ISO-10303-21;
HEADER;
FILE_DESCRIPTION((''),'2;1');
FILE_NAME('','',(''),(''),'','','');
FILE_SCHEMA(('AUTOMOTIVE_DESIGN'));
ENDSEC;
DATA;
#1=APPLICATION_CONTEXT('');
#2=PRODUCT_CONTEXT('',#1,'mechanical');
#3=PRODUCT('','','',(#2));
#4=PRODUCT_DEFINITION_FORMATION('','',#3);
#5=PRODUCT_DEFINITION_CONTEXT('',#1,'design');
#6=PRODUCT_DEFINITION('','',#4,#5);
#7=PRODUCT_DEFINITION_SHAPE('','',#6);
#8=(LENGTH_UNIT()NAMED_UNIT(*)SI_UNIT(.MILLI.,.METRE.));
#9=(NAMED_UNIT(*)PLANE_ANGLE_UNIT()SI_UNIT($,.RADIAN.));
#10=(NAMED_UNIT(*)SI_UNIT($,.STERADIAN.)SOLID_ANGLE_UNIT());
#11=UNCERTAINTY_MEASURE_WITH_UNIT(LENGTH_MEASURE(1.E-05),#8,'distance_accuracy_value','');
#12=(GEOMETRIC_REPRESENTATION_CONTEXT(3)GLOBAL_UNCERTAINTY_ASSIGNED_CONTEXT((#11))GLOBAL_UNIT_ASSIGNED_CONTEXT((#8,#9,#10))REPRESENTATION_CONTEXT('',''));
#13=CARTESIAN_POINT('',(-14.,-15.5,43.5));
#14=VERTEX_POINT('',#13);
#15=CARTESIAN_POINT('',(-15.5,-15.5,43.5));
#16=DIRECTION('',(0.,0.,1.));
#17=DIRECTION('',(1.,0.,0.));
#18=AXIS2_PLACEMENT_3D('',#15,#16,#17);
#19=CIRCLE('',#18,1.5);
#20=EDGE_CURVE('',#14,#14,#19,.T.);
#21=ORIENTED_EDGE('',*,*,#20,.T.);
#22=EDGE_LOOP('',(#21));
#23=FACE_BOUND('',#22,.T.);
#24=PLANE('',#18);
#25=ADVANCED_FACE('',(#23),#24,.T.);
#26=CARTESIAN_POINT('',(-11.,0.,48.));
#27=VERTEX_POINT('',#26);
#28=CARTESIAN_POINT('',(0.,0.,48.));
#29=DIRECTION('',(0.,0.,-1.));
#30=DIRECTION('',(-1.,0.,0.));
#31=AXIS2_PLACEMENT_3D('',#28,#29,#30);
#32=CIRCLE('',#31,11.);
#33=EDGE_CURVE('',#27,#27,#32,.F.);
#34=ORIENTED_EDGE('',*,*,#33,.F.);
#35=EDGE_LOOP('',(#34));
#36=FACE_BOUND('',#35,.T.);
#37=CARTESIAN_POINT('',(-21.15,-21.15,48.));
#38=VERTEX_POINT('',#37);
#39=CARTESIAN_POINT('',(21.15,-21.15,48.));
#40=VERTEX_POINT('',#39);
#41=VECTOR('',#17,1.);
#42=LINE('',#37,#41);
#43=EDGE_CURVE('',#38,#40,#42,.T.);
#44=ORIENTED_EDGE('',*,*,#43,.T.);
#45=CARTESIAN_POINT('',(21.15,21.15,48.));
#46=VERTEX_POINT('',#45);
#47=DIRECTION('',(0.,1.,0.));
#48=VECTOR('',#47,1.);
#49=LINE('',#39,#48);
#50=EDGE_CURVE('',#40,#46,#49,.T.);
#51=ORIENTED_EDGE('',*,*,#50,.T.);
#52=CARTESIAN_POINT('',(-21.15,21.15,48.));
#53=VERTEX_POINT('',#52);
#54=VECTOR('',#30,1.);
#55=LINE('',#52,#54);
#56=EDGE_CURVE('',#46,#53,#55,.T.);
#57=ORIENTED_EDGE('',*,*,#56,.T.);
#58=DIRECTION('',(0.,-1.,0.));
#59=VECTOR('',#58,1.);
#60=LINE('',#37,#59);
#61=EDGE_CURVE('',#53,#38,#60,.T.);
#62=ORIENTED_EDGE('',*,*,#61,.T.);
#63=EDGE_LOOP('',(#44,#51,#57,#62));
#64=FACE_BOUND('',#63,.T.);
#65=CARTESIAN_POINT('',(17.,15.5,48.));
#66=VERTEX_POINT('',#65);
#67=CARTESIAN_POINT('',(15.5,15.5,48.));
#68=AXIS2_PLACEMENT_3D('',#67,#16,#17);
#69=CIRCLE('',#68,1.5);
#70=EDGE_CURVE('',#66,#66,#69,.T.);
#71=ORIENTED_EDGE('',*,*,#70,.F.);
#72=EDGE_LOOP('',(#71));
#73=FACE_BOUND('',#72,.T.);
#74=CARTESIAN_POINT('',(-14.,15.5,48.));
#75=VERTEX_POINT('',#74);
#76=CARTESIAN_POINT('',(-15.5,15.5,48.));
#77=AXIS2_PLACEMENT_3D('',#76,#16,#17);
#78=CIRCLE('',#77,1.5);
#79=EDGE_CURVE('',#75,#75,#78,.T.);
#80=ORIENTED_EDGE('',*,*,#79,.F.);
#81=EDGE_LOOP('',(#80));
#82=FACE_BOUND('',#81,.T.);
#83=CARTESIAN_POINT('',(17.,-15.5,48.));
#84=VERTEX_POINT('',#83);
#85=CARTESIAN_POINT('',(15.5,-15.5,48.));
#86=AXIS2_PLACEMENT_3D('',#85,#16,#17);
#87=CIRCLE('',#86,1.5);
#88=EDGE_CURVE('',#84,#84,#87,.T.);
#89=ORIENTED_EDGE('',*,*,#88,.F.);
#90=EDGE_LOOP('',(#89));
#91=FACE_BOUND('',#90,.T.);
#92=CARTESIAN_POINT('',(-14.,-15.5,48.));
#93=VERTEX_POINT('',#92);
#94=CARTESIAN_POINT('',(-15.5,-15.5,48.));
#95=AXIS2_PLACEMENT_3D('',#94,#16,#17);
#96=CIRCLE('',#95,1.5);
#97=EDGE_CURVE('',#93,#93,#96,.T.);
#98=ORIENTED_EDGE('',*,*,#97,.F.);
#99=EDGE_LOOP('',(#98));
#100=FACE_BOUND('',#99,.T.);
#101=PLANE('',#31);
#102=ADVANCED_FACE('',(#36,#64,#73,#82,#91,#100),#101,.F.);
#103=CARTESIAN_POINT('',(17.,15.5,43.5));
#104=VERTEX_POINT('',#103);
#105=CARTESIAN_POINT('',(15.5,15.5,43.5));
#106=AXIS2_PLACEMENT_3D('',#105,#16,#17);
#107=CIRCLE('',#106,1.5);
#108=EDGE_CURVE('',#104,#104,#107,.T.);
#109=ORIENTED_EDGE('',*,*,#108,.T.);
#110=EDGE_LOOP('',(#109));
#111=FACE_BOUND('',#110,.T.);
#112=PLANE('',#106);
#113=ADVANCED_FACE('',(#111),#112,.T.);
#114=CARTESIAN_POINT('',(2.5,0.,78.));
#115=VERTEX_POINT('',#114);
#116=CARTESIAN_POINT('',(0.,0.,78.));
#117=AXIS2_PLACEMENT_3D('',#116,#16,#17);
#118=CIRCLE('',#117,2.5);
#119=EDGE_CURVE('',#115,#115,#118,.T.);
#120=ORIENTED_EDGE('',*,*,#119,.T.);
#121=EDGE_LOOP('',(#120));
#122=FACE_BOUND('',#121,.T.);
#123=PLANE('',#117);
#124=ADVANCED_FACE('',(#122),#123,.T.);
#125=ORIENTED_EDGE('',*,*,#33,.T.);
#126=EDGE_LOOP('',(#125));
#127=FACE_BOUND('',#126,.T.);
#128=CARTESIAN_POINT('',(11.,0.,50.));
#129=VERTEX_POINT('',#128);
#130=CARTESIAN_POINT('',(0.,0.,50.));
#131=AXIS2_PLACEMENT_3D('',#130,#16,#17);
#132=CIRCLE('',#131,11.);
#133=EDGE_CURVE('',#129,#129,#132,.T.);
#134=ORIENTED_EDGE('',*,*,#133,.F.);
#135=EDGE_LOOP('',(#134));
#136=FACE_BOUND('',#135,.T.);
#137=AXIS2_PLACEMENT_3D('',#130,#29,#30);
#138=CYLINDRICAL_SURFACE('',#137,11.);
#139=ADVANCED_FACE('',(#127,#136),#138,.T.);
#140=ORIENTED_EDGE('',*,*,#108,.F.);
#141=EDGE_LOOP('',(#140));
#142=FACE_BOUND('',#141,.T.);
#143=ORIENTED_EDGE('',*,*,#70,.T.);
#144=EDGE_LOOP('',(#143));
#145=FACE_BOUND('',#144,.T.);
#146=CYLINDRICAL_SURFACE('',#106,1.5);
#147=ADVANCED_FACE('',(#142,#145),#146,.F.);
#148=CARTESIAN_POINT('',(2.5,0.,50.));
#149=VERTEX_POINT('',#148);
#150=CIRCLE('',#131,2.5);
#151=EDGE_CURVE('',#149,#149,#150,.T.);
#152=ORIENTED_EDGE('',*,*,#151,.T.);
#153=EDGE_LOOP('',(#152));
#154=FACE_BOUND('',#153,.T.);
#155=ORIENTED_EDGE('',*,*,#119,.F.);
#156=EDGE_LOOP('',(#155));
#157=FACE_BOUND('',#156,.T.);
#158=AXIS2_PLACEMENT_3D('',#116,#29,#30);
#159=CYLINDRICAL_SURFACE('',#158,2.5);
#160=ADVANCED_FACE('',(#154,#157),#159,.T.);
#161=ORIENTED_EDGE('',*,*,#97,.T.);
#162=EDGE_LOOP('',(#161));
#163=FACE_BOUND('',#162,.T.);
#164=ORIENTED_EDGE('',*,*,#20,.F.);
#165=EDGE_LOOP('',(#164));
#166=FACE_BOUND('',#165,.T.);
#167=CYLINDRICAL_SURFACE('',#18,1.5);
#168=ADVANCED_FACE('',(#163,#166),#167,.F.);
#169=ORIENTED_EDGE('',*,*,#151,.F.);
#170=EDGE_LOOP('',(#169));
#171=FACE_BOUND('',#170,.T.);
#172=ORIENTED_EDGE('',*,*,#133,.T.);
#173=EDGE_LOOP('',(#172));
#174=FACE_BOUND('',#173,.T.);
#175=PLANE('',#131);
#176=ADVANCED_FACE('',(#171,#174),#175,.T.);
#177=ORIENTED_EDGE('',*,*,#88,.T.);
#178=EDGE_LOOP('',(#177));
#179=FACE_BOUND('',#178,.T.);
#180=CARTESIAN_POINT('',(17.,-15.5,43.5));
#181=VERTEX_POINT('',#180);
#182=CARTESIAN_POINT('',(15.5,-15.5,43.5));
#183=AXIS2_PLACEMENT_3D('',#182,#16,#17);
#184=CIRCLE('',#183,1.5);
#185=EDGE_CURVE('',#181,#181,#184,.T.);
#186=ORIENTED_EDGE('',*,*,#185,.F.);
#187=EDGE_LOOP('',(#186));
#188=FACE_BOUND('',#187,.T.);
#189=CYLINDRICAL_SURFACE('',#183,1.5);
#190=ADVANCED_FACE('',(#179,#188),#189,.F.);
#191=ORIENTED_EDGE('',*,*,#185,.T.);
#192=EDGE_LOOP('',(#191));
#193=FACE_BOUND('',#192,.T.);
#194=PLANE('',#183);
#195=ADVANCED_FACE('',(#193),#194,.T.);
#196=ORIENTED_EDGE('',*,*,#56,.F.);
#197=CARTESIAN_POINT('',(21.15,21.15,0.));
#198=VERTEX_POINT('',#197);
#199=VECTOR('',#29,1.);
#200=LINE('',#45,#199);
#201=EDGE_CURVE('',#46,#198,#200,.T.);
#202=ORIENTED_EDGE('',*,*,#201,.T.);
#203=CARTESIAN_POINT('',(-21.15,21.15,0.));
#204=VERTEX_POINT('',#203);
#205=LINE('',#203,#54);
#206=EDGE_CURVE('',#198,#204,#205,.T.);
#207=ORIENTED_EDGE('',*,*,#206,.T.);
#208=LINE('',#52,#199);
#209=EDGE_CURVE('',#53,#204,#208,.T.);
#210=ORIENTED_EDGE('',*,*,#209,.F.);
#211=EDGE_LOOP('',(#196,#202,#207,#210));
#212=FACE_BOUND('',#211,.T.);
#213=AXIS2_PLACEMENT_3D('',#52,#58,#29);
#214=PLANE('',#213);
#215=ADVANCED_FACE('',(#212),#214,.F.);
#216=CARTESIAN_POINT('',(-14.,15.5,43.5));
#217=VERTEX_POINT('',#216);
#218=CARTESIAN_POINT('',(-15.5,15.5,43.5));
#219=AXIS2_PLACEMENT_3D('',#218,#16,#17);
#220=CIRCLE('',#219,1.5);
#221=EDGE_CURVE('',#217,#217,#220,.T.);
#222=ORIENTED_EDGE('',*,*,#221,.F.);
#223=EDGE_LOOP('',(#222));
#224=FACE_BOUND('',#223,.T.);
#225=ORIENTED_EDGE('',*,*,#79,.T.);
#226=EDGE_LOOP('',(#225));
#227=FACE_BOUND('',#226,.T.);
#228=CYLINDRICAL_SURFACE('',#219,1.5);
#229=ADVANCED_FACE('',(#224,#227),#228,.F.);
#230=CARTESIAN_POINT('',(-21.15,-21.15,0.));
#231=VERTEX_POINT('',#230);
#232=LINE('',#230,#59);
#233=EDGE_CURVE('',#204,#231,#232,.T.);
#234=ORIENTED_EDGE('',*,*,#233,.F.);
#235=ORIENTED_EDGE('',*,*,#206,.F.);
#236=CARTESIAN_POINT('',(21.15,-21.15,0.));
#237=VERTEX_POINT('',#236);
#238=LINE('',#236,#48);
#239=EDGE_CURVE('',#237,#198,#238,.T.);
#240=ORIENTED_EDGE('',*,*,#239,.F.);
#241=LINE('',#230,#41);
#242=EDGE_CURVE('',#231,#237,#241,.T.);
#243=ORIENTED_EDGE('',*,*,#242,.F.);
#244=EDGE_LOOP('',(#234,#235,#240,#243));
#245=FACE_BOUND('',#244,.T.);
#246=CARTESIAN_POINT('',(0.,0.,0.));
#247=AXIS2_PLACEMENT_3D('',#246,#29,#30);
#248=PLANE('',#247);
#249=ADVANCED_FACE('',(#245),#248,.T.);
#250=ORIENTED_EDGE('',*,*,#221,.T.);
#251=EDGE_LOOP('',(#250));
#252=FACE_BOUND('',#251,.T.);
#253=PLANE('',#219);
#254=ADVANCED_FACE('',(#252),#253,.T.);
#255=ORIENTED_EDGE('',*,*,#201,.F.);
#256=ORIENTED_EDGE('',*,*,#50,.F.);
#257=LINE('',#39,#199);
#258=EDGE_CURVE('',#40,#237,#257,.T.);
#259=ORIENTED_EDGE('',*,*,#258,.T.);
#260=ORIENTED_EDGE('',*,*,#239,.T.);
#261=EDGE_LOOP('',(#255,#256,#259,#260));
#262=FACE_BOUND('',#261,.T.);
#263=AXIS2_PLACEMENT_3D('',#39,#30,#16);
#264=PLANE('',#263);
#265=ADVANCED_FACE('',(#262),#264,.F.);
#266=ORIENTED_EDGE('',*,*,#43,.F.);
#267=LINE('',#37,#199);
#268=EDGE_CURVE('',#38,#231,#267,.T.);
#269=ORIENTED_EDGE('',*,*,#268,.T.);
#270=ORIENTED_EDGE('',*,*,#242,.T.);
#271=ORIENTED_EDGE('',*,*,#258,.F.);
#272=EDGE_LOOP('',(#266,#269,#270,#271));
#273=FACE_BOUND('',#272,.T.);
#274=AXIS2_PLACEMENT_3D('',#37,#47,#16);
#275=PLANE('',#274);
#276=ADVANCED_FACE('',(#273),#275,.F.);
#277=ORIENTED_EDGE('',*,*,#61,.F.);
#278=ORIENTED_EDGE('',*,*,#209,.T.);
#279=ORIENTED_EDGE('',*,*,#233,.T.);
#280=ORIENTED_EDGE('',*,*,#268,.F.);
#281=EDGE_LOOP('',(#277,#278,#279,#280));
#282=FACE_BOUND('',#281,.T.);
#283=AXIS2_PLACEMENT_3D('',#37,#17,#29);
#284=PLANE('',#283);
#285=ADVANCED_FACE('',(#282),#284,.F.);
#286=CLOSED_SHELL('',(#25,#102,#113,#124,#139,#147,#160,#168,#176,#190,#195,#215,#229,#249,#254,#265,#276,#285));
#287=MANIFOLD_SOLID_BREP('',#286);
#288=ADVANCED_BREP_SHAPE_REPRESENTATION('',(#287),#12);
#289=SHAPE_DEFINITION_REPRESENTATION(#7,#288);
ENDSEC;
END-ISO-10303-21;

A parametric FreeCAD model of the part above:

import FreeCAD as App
import Part
import Sketcher

V = App.Vector

doc = App.newDocument("Part")
params = doc.addObject("Spreadsheet::Sheet", "Params")
for row, (alias, value) in enumerate([
    ("sketch1_width", "42.3 mm"),
    ("pad1_length", "48 mm"),
    ("sketch2_diameter", "5 mm"),
    ("pad2_length", "78 mm"),
    ("sketch3_diameter", "22 mm"),
    ("pad3_length", "50 mm"),
    ("sketch4_diameter", "3 mm"),
    ("pocket1_length", "4.5 mm"),
], start=1):
    params.set(f"A{row}", alias)
    params.set(f"B{row}", "=" + value)
    params.setAlias(f"B{row}", alias)

body = doc.addObject("PartDesign::Body", "Body")

sketch1 = body.newObject("Sketcher::SketchObject", "Sketch")
sketch1.AttachmentSupport = (doc.getObject("XY_Plane"), [""])
sketch1.MapMode = "FlatFace"
sketch1.addGeometry([
    Part.LineSegment(V(-21, 21, 0), V(-21, -21, 0)),
    Part.LineSegment(V(-21, -21, 0), V(21, -21, 0)),
    Part.LineSegment(V(21, -21, 0), V(21, 21, 0)),
    Part.LineSegment(V(21, 21, 0), V(-21, 21, 0)),
], False)
sketch1.addConstraint([
    Sketcher.Constraint("Coincident", 0, 2, 1, 1),
    Sketcher.Constraint("Coincident", 1, 2, 2, 1),
    Sketcher.Constraint("Coincident", 2, 2, 3, 1),
    Sketcher.Constraint("Coincident", 3, 2, 0, 1),
    Sketcher.Constraint("Vertical", 0),
    Sketcher.Constraint("Horizontal", 1),
    Sketcher.Constraint("Vertical", 2),
    Sketcher.Constraint("Horizontal", 3),
    Sketcher.Constraint("Symmetric", 0, 2, 2, 2, -1, 1),
    Sketcher.Constraint("Equal", 3, 0),
    Sketcher.Constraint("DistanceX", 1, 1, 1, 2, 42.3),
])
sketch1.setExpression("Constraints[10]", "Params.sketch1_width")
pad1 = body.newObject("PartDesign::Pad", "Pad")
pad1.Profile = sketch1
pad1.setExpression("Length", "Params.pad1_length")

sketch2 = body.newObject("Sketcher::SketchObject", "Sketch001")
sketch2.AttachmentSupport = (doc.getObject("XY_Plane"), [""])
sketch2.MapMode = "FlatFace"
sketch2.addGeometry(Part.Circle(V(0, 0, 0), V(0, 0, 1), 2.5), False)
sketch2.addConstraint([
    Sketcher.Constraint("Coincident", 0, 3, -1, 1),
    Sketcher.Constraint("Diameter", 0, 5.0),
])
sketch2.setExpression("Constraints[1]", "Params.sketch2_diameter")
pad2 = body.newObject("PartDesign::Pad", "Pad001")
pad2.Profile = sketch2
pad2.setExpression("Length", "Params.pad2_length")

sketch3 = body.newObject("Sketcher::SketchObject", "Sketch002")
sketch3.AttachmentSupport = (doc.getObject("XY_Plane"), [""])
sketch3.MapMode = "FlatFace"
sketch3.addGeometry(Part.Circle(V(0, 0, 0), V(0, 0, 1), 11), False)
sketch3.addConstraint([
    Sketcher.Constraint("Coincident", 0, 3, -1, 1),
    Sketcher.Constraint("Diameter", 0, 22.0),
])
sketch3.setExpression("Constraints[1]", "Params.sketch3_diameter")
pad3 = body.newObject("PartDesign::Pad", "Pad002")
pad3.Profile = sketch3
pad3.setExpression("Length", "Params.pad3_length")

sketch4 = body.newObject("Sketcher::SketchObject", "Sketch003")
sketch4.AttachmentSupport = (doc.getObject("XY_Plane"), [""])
sketch4.MapMode = "FlatFace"
sketch4.AttachmentOffset = App.Placement(V(0, 0, 48), App.Rotation())
sketch4.addGeometry([
    Part.Circle(V(-15.5, -15.5, 0), V(0, 0, 1), 1.5),
    Part.Circle(V(-15.5, 15.5, 0), V(0, 0, 1), 1.5),
    Part.Circle(V(15.5, -15.5, 0), V(0, 0, 1), 1.5),
    Part.Circle(V(15.5, 15.5, 0), V(0, 0, 1), 1.5),
], False)
sketch4.addConstraint([
    Sketcher.Constraint("Equal", 0, 1),
    Sketcher.Constraint("Equal", 1, 2),
    Sketcher.Constraint("Equal", 2, 3),
    Sketcher.Constraint("Symmetric", 1, 3, 2, 3, -1, 1),
    Sketcher.Constraint("Symmetric", 0, 3, 3, 3, -1, 1),
    Sketcher.Constraint("Symmetric", 0, 3, 2, 3, -2),
    Sketcher.Constraint("Diameter", 0, 3.0),
    Sketcher.Constraint("DistanceY", 0, 3, 1, 3, 31.0),
    Sketcher.Constraint("DistanceX", 0, 3, 2, 3, 31.0),
])
sketch4.setExpression("Constraints[6]", "Params.sketch4_diameter")
pocket1 = body.newObject("PartDesign::Pocket", "Pocket")
pocket1.Profile = sketch4
pocket1.setExpression("Length", "Params.pocket1_length")

doc.recompute()
